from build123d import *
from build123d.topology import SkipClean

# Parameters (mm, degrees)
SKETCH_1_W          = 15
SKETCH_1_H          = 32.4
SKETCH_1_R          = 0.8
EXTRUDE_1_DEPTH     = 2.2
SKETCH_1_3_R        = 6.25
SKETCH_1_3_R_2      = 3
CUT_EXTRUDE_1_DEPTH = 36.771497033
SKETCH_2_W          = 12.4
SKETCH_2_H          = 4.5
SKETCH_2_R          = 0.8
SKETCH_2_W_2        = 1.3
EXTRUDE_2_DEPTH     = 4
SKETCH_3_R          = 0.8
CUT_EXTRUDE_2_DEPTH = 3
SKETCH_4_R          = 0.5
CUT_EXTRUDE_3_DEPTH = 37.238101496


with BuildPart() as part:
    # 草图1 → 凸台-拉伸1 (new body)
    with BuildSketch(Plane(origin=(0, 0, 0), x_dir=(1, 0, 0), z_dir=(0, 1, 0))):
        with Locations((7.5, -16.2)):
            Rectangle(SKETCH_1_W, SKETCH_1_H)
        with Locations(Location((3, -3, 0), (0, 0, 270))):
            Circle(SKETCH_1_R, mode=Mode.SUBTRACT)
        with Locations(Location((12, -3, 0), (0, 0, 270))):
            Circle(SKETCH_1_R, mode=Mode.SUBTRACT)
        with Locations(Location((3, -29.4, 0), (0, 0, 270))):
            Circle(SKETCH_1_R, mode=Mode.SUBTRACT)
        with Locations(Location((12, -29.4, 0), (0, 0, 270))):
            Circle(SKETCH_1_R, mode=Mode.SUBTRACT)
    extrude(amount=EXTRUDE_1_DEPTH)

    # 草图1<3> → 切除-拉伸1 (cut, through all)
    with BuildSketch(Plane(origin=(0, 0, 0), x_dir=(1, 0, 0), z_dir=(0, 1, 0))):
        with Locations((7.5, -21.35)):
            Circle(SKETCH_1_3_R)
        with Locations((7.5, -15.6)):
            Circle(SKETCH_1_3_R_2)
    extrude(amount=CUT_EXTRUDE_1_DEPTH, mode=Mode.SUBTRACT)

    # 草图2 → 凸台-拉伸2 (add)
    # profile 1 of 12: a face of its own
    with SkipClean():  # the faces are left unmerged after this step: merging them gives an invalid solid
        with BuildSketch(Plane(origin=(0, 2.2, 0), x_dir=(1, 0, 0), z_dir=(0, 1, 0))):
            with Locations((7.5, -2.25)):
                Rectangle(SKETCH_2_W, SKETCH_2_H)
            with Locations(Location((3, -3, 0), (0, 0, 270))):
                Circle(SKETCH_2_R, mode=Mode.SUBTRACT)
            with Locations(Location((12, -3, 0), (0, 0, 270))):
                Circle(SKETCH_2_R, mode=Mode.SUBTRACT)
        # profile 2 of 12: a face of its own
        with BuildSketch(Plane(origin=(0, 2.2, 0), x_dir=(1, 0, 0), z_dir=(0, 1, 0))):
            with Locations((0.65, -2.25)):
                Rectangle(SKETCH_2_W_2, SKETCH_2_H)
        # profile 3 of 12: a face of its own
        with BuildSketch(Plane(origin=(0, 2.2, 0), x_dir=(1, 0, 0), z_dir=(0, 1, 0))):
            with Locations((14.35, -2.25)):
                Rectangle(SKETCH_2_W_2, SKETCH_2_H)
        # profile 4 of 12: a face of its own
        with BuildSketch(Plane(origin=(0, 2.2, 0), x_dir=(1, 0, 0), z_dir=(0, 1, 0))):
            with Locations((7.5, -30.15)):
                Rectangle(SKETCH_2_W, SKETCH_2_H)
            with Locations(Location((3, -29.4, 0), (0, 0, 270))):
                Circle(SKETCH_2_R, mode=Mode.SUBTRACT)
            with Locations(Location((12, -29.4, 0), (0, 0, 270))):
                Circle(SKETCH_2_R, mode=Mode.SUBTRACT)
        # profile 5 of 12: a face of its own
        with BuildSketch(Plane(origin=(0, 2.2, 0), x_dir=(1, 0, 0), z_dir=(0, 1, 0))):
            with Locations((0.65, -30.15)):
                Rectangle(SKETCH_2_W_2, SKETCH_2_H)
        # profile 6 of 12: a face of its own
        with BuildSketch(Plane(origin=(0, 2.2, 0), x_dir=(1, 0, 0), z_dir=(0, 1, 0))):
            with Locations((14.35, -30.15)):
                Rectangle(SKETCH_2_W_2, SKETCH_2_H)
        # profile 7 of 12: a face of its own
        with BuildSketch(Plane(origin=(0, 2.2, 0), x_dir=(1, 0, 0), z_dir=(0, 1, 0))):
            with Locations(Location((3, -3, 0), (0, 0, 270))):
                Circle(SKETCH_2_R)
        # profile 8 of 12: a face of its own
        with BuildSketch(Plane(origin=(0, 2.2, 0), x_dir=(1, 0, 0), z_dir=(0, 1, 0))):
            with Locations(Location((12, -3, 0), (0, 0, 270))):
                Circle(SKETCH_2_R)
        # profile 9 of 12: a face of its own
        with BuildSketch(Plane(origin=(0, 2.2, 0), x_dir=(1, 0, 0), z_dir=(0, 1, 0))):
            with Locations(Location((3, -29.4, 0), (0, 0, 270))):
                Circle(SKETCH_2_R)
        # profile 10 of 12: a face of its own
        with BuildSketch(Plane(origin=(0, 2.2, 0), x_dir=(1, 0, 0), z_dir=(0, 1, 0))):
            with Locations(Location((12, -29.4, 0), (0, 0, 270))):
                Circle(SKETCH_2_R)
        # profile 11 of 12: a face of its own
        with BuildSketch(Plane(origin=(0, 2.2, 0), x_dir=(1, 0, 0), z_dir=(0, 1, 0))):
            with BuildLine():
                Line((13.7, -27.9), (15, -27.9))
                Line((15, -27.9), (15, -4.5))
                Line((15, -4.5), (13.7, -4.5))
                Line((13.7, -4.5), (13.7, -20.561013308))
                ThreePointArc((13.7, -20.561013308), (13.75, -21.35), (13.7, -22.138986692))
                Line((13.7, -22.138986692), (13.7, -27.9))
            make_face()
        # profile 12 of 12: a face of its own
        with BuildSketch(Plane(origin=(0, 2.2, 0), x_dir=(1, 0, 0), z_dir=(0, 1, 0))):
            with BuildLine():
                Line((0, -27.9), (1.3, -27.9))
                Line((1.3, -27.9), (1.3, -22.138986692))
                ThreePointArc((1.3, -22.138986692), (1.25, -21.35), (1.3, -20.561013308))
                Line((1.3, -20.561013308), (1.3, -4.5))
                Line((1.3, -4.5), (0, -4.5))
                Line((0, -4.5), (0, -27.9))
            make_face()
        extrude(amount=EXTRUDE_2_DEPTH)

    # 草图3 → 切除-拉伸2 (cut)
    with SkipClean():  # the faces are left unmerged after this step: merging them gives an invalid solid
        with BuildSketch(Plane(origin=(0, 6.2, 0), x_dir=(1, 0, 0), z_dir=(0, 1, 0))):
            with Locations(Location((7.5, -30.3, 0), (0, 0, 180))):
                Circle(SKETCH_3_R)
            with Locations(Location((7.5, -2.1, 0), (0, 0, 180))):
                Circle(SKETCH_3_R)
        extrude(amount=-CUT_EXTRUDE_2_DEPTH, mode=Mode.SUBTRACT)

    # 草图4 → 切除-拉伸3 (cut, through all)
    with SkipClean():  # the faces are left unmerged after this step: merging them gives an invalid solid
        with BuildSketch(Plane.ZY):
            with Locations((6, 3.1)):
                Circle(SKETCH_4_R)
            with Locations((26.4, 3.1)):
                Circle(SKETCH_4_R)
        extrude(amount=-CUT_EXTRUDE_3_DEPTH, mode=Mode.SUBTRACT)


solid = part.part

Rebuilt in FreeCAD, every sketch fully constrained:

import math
import FreeCAD as App
import Part
import Sketcher
Q = App.Units.Quantity


def add_polygon(sketch, points):
    """Adds a closed chain of lines whose ends are joined by coincident constraints."""
    first, n = sketch.GeometryCount, len(points)
    for a, b in zip(points, points[1:] + points[:1]):
        sketch.addGeometry(Part.LineSegment(App.Vector(*a, 0), App.Vector(*b, 0)), False)
    for i in range(n):
        sketch.addConstraint(Sketcher.Constraint("Coincident", first + i, 2, first + (i + 1) % n, 1))

doc = App.newDocument("Part")
body = doc.addObject("PartDesign::Body", "Body")

sketch1 = doc.addObject("Sketcher::SketchObject", "Sketch")
body.addObject(sketch1)
sketch1.AttachmentSupport = (doc.XZ_Plane, [""])
sketch1.MapMode = "FlatFace"
add_polygon(sketch1, [(0, 0), (0, 32.4), (15, 32.4), (15, 0)])
sketch1.addGeometry(Part.Circle(App.Vector(3, 29.4, 0), App.Vector(0, 0, 1), 0.8), False)
sketch1.addGeometry(Part.Circle(App.Vector(12, 29.4, 0), App.Vector(0, 0, 1), 0.8), False)
sketch1.addGeometry(Part.Circle(App.Vector(3, 3, 0), App.Vector(0, 0, 1), 0.8), False)
sketch1.addGeometry(Part.Circle(App.Vector(12, 3, 0), App.Vector(0, 0, 1), 0.8), False)
sketch1.addConstraint([
    Sketcher.Constraint("Vertical", 0),
    Sketcher.Constraint("Horizontal", 1),
    Sketcher.Constraint("Vertical", 2),
    Sketcher.Constraint("Horizontal", 3),
    Sketcher.Constraint("Coincident", 3, 2, -1, 1),
    Sketcher.Constraint("Equal", 4, 5),
    Sketcher.Constraint("Equal", 5, 6),
    Sketcher.Constraint("Equal", 6, 7),
    Sketcher.Constraint("Horizontal", 4, 3, 5, 3),
    Sketcher.Constraint("Horizontal", 6, 3, 7, 3),
    Sketcher.Constraint("Vertical", 4, 3, 6, 3),
    Sketcher.Constraint("Vertical", 5, 3, 7, 3),
    Sketcher.Constraint("Diameter", 4, Q("1.6 mm")),
    Sketcher.Constraint("DistanceX", 1, 1, 1, 2, Q("15 mm")),
    Sketcher.Constraint("DistanceY", 0, 1, 0, 2, Q("32.4 mm")),
    Sketcher.Constraint("DistanceX", -1, 1, 4, 3, Q("3 mm")),
    Sketcher.Constraint("DistanceX", -1, 1, 5, 3, Q("12 mm")),
    Sketcher.Constraint("DistanceY", -1, 1, 6, 3, Q("3 mm")),
    Sketcher.Constraint("DistanceY", 4, 3, 0, 2, Q("3 mm")),
])
pad1 = doc.addObject("PartDesign::Pad", "Pad")
body.addObject(pad1)
pad1.Profile = sketch1
pad1.Length = 2.2
pad1.Reversed = True

sketch2 = doc.addObject("Sketcher::SketchObject", "Sketch001")
body.addObject(sketch2)
sketch2.AttachmentSupport = (doc.XZ_Plane, [""])
sketch2.MapMode = "FlatFace"
sketch2.addGeometry([
    Part.ArcOfCircle(Part.Circle(App.Vector(7.5, 21.4, 0), App.Vector(0, 0, 1), 6.2), math.radians(-61), math.radians(241)),
    Part.ArcOfCircle(Part.Circle(App.Vector(7.5, 15.6, 0), App.Vector(0, 0, 1), 3), math.radians(175), math.radians(365)),
], False)
sketch2.addConstraint([
    Sketcher.Constraint("Coincident", 0, 1, 1, 2),
    Sketcher.Constraint("Coincident", 1, 1, 0, 2),
    Sketcher.Constraint("Horizontal", 0, 1, 1, 1),
    Sketcher.Constraint("Radius", 1, Q("3 mm")),
    Sketcher.Constraint("Radius", 0, Q("6.25 mm")),
    Sketcher.Constraint("DistanceX", -1, 1, 0, 3, Q("7.5 mm")),
    Sketcher.Constraint("DistanceY", -1, 1, 1, 3, Q("15.6 mm")),
    Sketcher.Constraint("DistanceY", -1, 1, 0, 3, Q("21.35 mm")),
])
pocket1 = doc.addObject("PartDesign::Pocket", "Pocket")
body.addObject(pocket1)
pocket1.Profile = sketch2
pocket1.Type = "ThroughAll"

sketch3 = doc.addObject("Sketcher::SketchObject", "Sketch002")
body.addObject(sketch3)
sketch3.AttachmentSupport = (doc.XZ_Plane, [""])
sketch3.MapMode = "FlatFace"
sketch3.AttachmentOffset = App.Placement(App.Vector(0, 0, -2.2), App.Rotation())
add_polygon(sketch3, [(0, 0), (0, 32.4), (15, 32.4), (15, 0)])
sketch3.addGeometry(Part.LineSegment(App.Vector(1.3, 4.5, 0), App.Vector(13.7, 4.5, 0)), False)
sketch3.addGeometry(Part.LineSegment(App.Vector(13.7, 4.5, 0), App.Vector(13.7, 20.6, 0)), False)
sketch3.addGeometry(Part.ArcOfCircle(Part.Circle(App.Vector(7.5, 21.4, 0), App.Vector(0, 0, 1), 6.3), math.radians(-7.25), math.radians(7.25)), False)
sketch3.addGeometry(Part.LineSegment(App.Vector(13.7, 22.1, 0), App.Vector(13.7, 27.9, 0)), False)
sketch3.addGeometry(Part.LineSegment(App.Vector(13.7, 27.9, 0), App.Vector(1.3, 27.9, 0)), False)
sketch3.addGeometry(Part.LineSegment(App.Vector(1.3, 27.9, 0), App.Vector(1.3, 22.1, 0)), False)
sketch3.addGeometry(Part.ArcOfCircle(Part.Circle(App.Vector(7.5, 21.4, 0), App.Vector(0, 0, 1), 6.3), math.radians(172.75), math.radians(187.25)), False)
sketch3.addGeometry(Part.LineSegment(App.Vector(1.3, 20.6, 0), App.Vector(1.3, 4.5, 0)), False)
sketch3.addConstraint([
    Sketcher.Constraint("Coincident", 4, 2, 5, 1),
    Sketcher.Constraint("Coincident", 5, 2, 6, 1),
    Sketcher.Constraint("Coincident", 6, 2, 7, 1),
    Sketcher.Constraint("Coincident", 7, 2, 8, 1),
    Sketcher.Constraint("Coincident", 8, 2, 9, 1),
    Sketcher.Constraint("Coincident", 9, 2, 10, 1),
    Sketcher.Constraint("Coincident", 10, 2, 11, 1),
    Sketcher.Constraint("Coincident", 11, 2, 4, 1),
    Sketcher.Constraint("Vertical", 0),
    Sketcher.Constraint("Horizontal", 1),
    Sketcher.Constraint("Vertical", 2),
    Sketcher.Constraint("Horizontal", 3),
    Sketcher.Constraint("Horizontal", 4),
    Sketcher.Constraint("Vertical", 5),
    Sketcher.Constraint("Vertical", 7),
    Sketcher.Constraint("Horizontal", 8),
    Sketcher.Constraint("Vertical", 9),
    Sketcher.Constraint("Vertical", 11),
    Sketcher.Constraint("Coincident", 3, 2, -1, 1),
    Sketcher.Constraint("Coincident", 10, 3, 6, 3),
    Sketcher.Constraint("Equal", 6, 10),
    Sketcher.Constraint("Horizontal", 6, 2, 9, 2),
    Sketcher.Constraint("Horizontal", 5, 2, 10, 2),
    Sketcher.Constraint("Vertical", 5, 2, 6, 2),
    Sketcher.Constraint("DistanceX", 1, 1, 1, 2, Q("15 mm")),
    Sketcher.Constraint("Radius", 6, Q("6.25 mm")),
    Sketcher.Constraint("DistanceX", 4, 1, 4, 2, Q("12.4 mm")),
    Sketcher.Constraint("DistanceY", 0, 1, 0, 2, Q("32.4 mm")),
    Sketcher.Constraint("DistanceX", -1, 1, 6, 3, Q("7.5 mm")),
    Sketcher.Constraint("DistanceY", -1, 1, 4, 2, Q("4.5 mm")),
    Sketcher.Constraint("DistanceY", -1, 1, 7, 2, Q("27.9 mm")),
    Sketcher.Constraint("DistanceY", -1, 1, 6, 3, Q("21.35 mm")),
])
pad2 = doc.addObject("PartDesign::Pad", "Pad001")
body.addObject(pad2)
pad2.Profile = sketch3
pad2.Length = 4
pad2.Reversed = True

sketch4 = doc.addObject("Sketcher::SketchObject", "Sketch003")
body.addObject(sketch4)
sketch4.AttachmentSupport = (doc.XZ_Plane, [""])
sketch4.MapMode = "FlatFace"
sketch4.AttachmentOffset = App.Placement(App.Vector(0, 0, -6.2), App.Rotation())
sketch4.addGeometry([
    Part.Circle(App.Vector(7.5, 30.3, 0), App.Vector(0, 0, 1), 0.8),
    Part.Circle(App.Vector(7.5, 2.1, 0), App.Vector(0, 0, 1), 0.8),
], False)
sketch4.addConstraint([
    Sketcher.Constraint("Equal", 0, 1),
    Sketcher.Constraint("Vertical", 0, 3, 1, 3),
    Sketcher.Constraint("Diameter", 0, Q("1.6 mm")),
    Sketcher.Constraint("DistanceX", -1, 1, 0, 3, Q("7.5 mm")),
    Sketcher.Constraint("DistanceY", -1, 1, 0, 3, Q("30.3 mm")),
    Sketcher.Constraint("DistanceY", -1, 1, 1, 3, Q("2.1 mm")),
])
pocket2 = doc.addObject("PartDesign::Pocket", "Pocket001")
body.addObject(pocket2)
pocket2.Profile = sketch4
pocket2.Length = 3
pocket2.Reversed = True

sketch5 = doc.addObject("Sketcher::SketchObject", "Sketch004")
body.addObject(sketch5)
sketch5.AttachmentSupport = (doc.YZ_Plane, [""])
sketch5.MapMode = "FlatFace"
sketch5.addGeometry([
    Part.Circle(App.Vector(3.1, 6, 0), App.Vector(0, 0, 1), 0.5),
    Part.Circle(App.Vector(3.1, 26.4, 0), App.Vector(0, 0, 1), 0.5),
], False)
sketch5.addConstraint([
    Sketcher.Constraint("Equal", 0, 1),
    Sketcher.Constraint("Vertical", 0, 3, 1, 3),
    Sketcher.Constraint("Diameter", 0, Q("1 mm")),
    Sketcher.Constraint("DistanceY", -1, 1, 0, 3, Q("6 mm")),
    Sketcher.Constraint("DistanceX", -1, 1, 0, 3, Q("3.1 mm")),
    Sketcher.Constraint("DistanceY", -1, 1, 1, 3, Q("26.4 mm")),
])
pocket3 = doc.addObject("PartDesign::Pocket", "Pocket002")
body.addObject(pocket3)
pocket3.Profile = sketch5
pocket3.Type = "ThroughAll"
pocket3.Reversed = True

doc.recompute()
